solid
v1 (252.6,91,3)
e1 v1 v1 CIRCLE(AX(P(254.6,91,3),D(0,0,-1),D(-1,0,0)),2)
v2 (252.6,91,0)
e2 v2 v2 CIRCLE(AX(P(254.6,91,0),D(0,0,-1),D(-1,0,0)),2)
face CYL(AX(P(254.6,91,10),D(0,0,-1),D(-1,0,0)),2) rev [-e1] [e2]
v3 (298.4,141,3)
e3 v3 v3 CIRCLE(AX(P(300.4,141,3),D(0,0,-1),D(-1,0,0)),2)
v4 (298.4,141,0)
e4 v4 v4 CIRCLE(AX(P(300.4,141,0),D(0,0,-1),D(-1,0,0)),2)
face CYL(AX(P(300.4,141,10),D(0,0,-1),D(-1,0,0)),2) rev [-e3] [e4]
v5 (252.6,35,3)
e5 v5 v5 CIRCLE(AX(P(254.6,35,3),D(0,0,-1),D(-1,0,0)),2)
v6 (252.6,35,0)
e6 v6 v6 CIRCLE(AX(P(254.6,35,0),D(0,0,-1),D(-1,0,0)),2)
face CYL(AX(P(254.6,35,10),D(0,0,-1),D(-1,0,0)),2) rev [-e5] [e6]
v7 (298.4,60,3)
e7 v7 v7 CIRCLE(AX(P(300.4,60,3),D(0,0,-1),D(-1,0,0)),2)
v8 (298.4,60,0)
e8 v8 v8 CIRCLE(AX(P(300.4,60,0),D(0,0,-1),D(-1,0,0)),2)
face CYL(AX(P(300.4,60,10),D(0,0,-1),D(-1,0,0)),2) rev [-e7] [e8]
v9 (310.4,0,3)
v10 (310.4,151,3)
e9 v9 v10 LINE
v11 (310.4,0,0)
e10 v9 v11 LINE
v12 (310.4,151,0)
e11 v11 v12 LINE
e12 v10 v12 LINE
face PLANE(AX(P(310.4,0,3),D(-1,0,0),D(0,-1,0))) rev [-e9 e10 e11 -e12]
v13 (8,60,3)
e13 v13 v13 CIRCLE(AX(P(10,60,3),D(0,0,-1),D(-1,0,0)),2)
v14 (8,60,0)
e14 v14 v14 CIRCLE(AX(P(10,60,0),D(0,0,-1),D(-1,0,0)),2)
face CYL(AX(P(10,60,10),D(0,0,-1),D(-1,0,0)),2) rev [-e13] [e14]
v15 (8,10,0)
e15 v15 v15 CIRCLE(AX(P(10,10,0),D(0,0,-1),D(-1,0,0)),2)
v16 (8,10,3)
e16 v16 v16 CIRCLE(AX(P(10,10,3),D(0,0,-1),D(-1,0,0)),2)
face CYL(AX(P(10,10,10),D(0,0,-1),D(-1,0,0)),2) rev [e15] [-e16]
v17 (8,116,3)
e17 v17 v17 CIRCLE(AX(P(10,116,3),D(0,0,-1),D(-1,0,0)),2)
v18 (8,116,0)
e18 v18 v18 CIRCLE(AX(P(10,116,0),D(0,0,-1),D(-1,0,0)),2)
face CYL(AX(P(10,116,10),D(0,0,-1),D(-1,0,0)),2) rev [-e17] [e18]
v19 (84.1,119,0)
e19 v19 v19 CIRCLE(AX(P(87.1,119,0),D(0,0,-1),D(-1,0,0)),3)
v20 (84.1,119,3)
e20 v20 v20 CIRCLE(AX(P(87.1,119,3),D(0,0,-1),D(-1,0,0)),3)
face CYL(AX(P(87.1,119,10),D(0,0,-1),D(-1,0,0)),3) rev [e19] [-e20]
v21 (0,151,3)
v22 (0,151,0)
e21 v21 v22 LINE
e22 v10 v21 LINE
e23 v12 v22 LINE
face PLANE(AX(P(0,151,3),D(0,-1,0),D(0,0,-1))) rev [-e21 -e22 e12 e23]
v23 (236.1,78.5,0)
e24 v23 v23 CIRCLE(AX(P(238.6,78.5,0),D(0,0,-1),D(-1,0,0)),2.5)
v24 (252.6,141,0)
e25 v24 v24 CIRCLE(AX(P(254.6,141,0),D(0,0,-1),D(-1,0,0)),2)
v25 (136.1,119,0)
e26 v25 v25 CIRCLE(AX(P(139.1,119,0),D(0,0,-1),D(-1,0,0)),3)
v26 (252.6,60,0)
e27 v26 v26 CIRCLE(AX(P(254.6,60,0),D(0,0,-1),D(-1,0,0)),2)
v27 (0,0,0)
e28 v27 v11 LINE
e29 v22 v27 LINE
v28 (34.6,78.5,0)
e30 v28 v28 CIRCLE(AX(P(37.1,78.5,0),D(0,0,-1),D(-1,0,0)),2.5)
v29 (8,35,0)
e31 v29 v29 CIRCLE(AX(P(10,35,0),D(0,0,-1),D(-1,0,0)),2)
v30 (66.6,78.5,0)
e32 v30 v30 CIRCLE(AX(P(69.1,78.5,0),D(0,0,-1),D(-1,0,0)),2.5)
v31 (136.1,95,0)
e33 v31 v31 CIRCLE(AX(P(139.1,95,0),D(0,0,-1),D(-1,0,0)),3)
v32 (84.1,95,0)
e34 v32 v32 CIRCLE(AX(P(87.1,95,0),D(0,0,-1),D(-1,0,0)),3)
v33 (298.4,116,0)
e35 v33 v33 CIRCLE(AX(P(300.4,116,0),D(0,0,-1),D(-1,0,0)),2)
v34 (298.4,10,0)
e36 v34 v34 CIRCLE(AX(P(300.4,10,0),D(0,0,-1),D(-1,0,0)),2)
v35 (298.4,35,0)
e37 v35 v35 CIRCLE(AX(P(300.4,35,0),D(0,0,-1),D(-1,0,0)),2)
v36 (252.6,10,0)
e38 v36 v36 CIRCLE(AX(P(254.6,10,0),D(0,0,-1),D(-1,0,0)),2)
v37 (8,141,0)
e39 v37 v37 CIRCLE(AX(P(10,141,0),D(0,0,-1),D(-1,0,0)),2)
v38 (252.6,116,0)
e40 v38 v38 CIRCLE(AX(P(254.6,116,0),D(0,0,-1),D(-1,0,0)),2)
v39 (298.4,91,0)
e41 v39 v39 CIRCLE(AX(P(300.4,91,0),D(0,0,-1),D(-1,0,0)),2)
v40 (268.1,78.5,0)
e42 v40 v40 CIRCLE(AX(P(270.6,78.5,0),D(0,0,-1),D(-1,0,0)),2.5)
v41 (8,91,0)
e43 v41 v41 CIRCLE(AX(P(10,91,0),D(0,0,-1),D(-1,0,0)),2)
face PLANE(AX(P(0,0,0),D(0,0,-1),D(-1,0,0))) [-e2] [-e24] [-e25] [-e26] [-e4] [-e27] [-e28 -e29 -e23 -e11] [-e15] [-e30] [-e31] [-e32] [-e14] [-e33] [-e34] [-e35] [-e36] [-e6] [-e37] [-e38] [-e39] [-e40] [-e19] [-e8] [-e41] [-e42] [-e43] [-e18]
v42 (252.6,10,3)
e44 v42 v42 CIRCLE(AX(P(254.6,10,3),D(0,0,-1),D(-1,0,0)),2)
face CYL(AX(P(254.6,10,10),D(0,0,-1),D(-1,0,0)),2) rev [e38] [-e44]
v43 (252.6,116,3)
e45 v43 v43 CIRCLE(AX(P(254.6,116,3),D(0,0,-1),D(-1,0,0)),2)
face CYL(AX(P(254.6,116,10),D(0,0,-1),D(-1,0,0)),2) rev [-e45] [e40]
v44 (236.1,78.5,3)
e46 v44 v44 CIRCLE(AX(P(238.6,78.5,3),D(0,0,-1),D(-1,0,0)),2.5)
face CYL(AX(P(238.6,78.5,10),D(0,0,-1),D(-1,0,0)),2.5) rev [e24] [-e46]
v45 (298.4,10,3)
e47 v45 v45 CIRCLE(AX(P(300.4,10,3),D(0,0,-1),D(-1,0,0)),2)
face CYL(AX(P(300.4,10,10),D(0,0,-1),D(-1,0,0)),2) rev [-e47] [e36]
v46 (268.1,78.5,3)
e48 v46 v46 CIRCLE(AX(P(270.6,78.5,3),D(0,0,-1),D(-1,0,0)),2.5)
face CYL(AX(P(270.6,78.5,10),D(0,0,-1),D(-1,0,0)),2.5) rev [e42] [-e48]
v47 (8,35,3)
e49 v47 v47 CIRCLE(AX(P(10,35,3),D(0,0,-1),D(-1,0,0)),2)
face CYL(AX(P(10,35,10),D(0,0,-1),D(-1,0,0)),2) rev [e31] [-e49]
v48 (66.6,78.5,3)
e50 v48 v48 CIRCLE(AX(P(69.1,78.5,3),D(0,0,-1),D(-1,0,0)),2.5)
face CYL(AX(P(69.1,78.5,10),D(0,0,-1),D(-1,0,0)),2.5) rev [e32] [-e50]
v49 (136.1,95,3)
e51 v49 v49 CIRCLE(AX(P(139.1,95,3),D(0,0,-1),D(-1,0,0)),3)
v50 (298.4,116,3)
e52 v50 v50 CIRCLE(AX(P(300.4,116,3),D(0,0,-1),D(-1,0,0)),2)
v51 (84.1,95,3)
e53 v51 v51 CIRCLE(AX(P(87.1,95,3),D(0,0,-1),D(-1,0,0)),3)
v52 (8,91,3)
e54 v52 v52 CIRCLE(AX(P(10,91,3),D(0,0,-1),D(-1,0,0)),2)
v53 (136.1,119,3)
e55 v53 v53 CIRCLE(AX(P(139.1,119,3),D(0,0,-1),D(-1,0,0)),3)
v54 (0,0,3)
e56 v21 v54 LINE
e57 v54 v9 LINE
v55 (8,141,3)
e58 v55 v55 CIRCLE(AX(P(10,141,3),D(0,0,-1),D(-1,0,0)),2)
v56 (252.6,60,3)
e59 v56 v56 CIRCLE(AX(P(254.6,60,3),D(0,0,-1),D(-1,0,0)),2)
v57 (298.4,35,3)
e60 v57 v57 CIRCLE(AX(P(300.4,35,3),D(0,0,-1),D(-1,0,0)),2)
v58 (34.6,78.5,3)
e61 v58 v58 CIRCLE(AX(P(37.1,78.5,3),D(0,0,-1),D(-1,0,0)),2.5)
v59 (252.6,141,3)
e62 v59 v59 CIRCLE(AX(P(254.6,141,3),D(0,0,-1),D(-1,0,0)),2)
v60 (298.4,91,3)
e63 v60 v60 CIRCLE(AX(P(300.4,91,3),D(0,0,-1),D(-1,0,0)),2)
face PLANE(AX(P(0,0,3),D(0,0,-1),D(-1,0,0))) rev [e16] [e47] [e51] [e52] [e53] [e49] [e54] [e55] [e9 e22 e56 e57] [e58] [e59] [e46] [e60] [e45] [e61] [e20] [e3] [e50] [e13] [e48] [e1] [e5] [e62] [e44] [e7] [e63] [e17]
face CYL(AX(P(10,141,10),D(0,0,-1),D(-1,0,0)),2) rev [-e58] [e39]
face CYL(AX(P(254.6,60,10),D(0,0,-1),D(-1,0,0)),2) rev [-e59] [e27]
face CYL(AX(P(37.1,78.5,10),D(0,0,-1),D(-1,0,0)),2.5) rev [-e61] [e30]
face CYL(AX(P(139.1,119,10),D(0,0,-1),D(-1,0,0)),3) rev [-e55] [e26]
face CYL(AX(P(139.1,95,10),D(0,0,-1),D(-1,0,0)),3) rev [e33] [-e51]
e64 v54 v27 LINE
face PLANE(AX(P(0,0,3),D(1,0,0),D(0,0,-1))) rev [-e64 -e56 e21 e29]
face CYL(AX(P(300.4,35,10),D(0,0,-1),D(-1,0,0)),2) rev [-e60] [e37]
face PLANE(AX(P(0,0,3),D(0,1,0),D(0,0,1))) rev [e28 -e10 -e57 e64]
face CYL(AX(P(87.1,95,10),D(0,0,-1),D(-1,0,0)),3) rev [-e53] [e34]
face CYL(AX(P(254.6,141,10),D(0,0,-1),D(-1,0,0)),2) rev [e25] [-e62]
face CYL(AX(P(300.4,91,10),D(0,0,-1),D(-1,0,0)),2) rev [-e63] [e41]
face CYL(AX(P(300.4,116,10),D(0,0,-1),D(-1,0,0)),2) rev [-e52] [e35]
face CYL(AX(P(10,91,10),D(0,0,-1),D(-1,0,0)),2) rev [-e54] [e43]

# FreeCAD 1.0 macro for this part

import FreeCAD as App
import Part
import Sketcher
from FreeCAD import Vector
Q = App.Units.Quantity

doc = App.newDocument("Part")
body = doc.addObject("PartDesign::Body", "Body")

# Sketch on XY plane
sketch1 = body.newObject("Sketcher::SketchObject", "Sketch")
sketch1.AttachmentSupport = (doc.getObject("XY_Plane"), [""])
sketch1.MapMode = "FlatFace"
sketch1.addGeometry(Part.LineSegment(Vector(0, 151, 0), Vector(0, 0, 0)), False)
sketch1.addGeometry(Part.LineSegment(Vector(0, 0, 0), Vector(310.4, 0, 0)), False)
sketch1.addGeometry(Part.LineSegment(Vector(310.4, 0, 0), Vector(310.4, 151, 0)), False)
sketch1.addGeometry(Part.LineSegment(Vector(310.4, 151, 0), Vector(0, 151, 0)), False)
sketch1.addConstraint(Sketcher.Constraint("Coincident", 0, 2, 1, 1))
sketch1.addConstraint(Sketcher.Constraint("Coincident", 1, 2, 2, 1))
sketch1.addConstraint(Sketcher.Constraint("Coincident", 2, 2, 3, 1))
sketch1.addConstraint(Sketcher.Constraint("Coincident", 3, 2, 0, 1))
sketch1.addConstraint(Sketcher.Constraint("Vertical", 0))
sketch1.addConstraint(Sketcher.Constraint("Horizontal", 1))
sketch1.addConstraint(Sketcher.Constraint("Vertical", 2))
sketch1.addConstraint(Sketcher.Constraint("Horizontal", 3))
sketch1.addConstraint(Sketcher.Constraint("Coincident", 0, 2, -1, 1))
sketch1.addConstraint(Sketcher.Constraint("DistanceY", 0, 2, 0, 1, Q("151 mm")))
sketch1.addConstraint(Sketcher.Constraint("DistanceX", 1, 1, 1, 2, Q("310.4 mm")))
pad1 = body.newObject("PartDesign::Pad", "Pad")
pad1.Profile = sketch1
pad1.Length = 3

# Sketch on XY plane
sketch2 = body.newObject("Sketcher::SketchObject", "Sketch001")
sketch2.AttachmentSupport = (doc.getObject("XY_Plane"), [""])
sketch2.MapMode = "FlatFace"
sketch2.addGeometry(Part.Circle(Vector(300.4, 116, 0), Vector(0, 0, 1), 2), False)
sketch2.addGeometry(Part.Circle(Vector(300.4, 141, 0), Vector(0, 0, 1), 2), False)
sketch2.addGeometry(Part.Circle(Vector(300.4, 60, 0), Vector(0, 0, 1), 2), False)
sketch2.addGeometry(Part.Circle(Vector(300.4, 91, 0), Vector(0, 0, 1), 2), False)
sketch2.addGeometry(Part.Circle(Vector(300.4, 35, 0), Vector(0, 0, 1), 2), False)
sketch2.addGeometry(Part.Circle(Vector(300.4, 10, 0), Vector(0, 0, 1), 2), False)
sketch2.addGeometry(Part.Circle(Vector(10, 141, 0), Vector(0, 0, 1), 2), False)
sketch2.addGeometry(Part.Circle(Vector(10, 116, 0), Vector(0, 0, 1), 2), False)
sketch2.addGeometry(Part.Circle(Vector(10, 91, 0), Vector(0, 0, 1), 2), False)
sketch2.addGeometry(Part.Circle(Vector(10, 60, 0), Vector(0, 0, 1), 2), False)
sketch2.addGeometry(Part.Circle(Vector(10, 35, 0), Vector(0, 0, 1), 2), False)
sketch2.addGeometry(Part.Circle(Vector(10, 10, 0), Vector(0, 0, 1), 2), False)
sketch2.addConstraint(Sketcher.Constraint("Equal", 0, 1))
sketch2.addConstraint(Sketcher.Constraint("Equal", 1, 2))
sketch2.addConstraint(Sketcher.Constraint("Equal", 2, 3))
sketch2.addConstraint(Sketcher.Constraint("Equal", 3, 4))
sketch2.addConstraint(Sketcher.Constraint("Equal", 4, 5))
sketch2.addConstraint(Sketcher.Constraint("Equal", 5, 6))
sketch2.addConstraint(Sketcher.Constraint("Equal", 6, 7))
sketch2.addConstraint(Sketcher.Constraint("Equal", 7, 8))
sketch2.addConstraint(Sketcher.Constraint("Equal", 8, 9))
sketch2.addConstraint(Sketcher.Constraint("Equal", 9, 10))
sketch2.addConstraint(Sketcher.Constraint("Equal", 10, 11))
sketch2.addConstraint(Sketcher.Constraint("Horizontal", 1, 3, 6, 3))
sketch2.addConstraint(Sketcher.Constraint("Horizontal", 0, 3, 7, 3))
sketch2.addConstraint(Sketcher.Constraint("Horizontal", 3, 3, 8, 3))
sketch2.addConstraint(Sketcher.Constraint("Horizontal", 2, 3, 9, 3))
sketch2.addConstraint(Sketcher.Constraint("Horizontal", 4, 3, 10, 3))
sketch2.addConstraint(Sketcher.Constraint("Horizontal", 5, 3, 11, 3))
sketch2.addConstraint(Sketcher.Constraint("Vertical", 0, 3, 1, 3))
sketch2.addConstraint(Sketcher.Constraint("Vertical", 1, 3, 2, 3))
sketch2.addConstraint(Sketcher.Constraint("Vertical", 2, 3, 3, 3))
sketch2.addConstraint(Sketcher.Constraint("Vertical", 3, 3, 4, 3))
sketch2.addConstraint(Sketcher.Constraint("Vertical", 4, 3, 5, 3))
sketch2.addConstraint(Sketcher.Constraint("Vertical", 6, 3, 7, 3))
sketch2.addConstraint(Sketcher.Constraint("Vertical", 7, 3, 8, 3))
sketch2.addConstraint(Sketcher.Constraint("Vertical", 8, 3, 9, 3))
sketch2.addConstraint(Sketcher.Constraint("Vertical", 9, 3, 10, 3))
sketch2.addConstraint(Sketcher.Constraint("Vertical", 10, 3, 11, 3))
sketch2.addConstraint(Sketcher.Constraint("Diameter", 0, Q("4 mm")))
sketch2.addConstraint(Sketcher.Constraint("DistanceY", -1, 1, 0, 3, Q("116 mm")))
sketch2.addConstraint(Sketcher.Constraint("DistanceY", -1, 1, 1, 3, Q("141 mm")))
sketch2.addConstraint(Sketcher.Constraint("DistanceY", -1, 1, 2, 3, Q("60 mm")))
sketch2.addConstraint(Sketcher.Constraint("DistanceY", -1, 1, 3, 3, Q("91 mm")))
sketch2.addConstraint(Sketcher.Constraint("DistanceY", -1, 1, 4, 3, Q("35 mm")))
sketch2.addConstraint(Sketcher.Constraint("DistanceY", -1, 1, 5, 3, Q("10 mm")))
sketch2.addConstraint(Sketcher.Constraint("DistanceX", -1, 1, 6, 3, Q("10 mm")))
sketch2.addConstraint(Sketcher.Constraint("DistanceX", -1, 1, 0, 3, Q("300.4 mm")))
pocket1 = body.newObject("PartDesign::Pocket", "Pocket")
pocket1.Profile = sketch2
pocket1.Length = 10
pocket1.Reversed = True

# Sketch on XY plane
sketch3 = body.newObject("Sketcher::SketchObject", "Sketch002")
sketch3.AttachmentSupport = (doc.getObject("XY_Plane"), [""])
sketch3.MapMode = "FlatFace"
sketch3.addGeometry(Part.Circle(Vector(254.6, 10, 0), Vector(0, 0, 1), 2), False)
sketch3.addGeometry(Part.Circle(Vector(254.6, 35, 0), Vector(0, 0, 1), 2), False)
sketch3.addGeometry(Part.Circle(Vector(254.6, 60, 0), Vector(0, 0, 1), 2), False)
sketch3.addGeometry(Part.Circle(Vector(254.6, 91, 0), Vector(0, 0, 1), 2), False)
sketch3.addGeometry(Part.Circle(Vector(254.6, 116, 0), Vector(0, 0, 1), 2), False)
sketch3.addGeometry(Part.Circle(Vector(254.6, 141, 0), Vector(0, 0, 1), 2), False)
sketch3.addConstraint(Sketcher.Constraint("Equal", 0, 1))
sketch3.addConstraint(Sketcher.Constraint("Equal", 1, 2))
sketch3.addConstraint(Sketcher.Constraint("Equal", 2, 3))
sketch3.addConstraint(Sketcher.Constraint("Equal", 3, 4))
sketch3.addConstraint(Sketcher.Constraint("Equal", 4, 5))
sketch3.addConstraint(Sketcher.Constraint("Vertical", 0, 3, 1, 3))
sketch3.addConstraint(Sketcher.Constraint("Vertical", 1, 3, 2, 3))
sketch3.addConstraint(Sketcher.Constraint("Vertical", 2, 3, 3, 3))
sketch3.addConstraint(Sketcher.Constraint("Vertical", 3, 3, 4, 3))
sketch3.addConstraint(Sketcher.Constraint("Vertical", 4, 3, 5, 3))
sketch3.addConstraint(Sketcher.Constraint("Diameter", 0, Q("4 mm")))
sketch3.addConstraint(Sketcher.Constraint("DistanceY", -1, 1, 0, 3, Q("10 mm")))
sketch3.addConstraint(Sketcher.Constraint("DistanceY", -1, 1, 1, 3, Q("35 mm")))
sketch3.addConstraint(Sketcher.Constraint("DistanceY", -1, 1, 2, 3, Q("60 mm")))
sketch3.addConstraint(Sketcher.Constraint("DistanceY", -1, 1, 3, 3, Q("91 mm")))
sketch3.addConstraint(Sketcher.Constraint("DistanceY", -1, 1, 4, 3, Q("116 mm")))
sketch3.addConstraint(Sketcher.Constraint("DistanceY", -1, 1, 5, 3, Q("141 mm")))
sketch3.addConstraint(Sketcher.Constraint("DistanceX", -1, 1, 0, 3, Q("254.6 mm")))
pocket2 = body.newObject("PartDesign::Pocket", "Pocket001")
pocket2.Profile = sketch3
pocket2.Length = 10
pocket2.Reversed = True

# Sketch on XY plane
sketch4 = body.newObject("Sketcher::SketchObject", "Sketch003")
sketch4.AttachmentSupport = (doc.getObject("XY_Plane"), [""])
sketch4.MapMode = "FlatFace"
sketch4.addGeometry(Part.Circle(Vector(139.1, 119, 0), Vector(0, 0, 1), 3), False)
sketch4.addGeometry(Part.Circle(Vector(87.1, 119, 0), Vector(0, 0, 1), 3), False)
sketch4.addGeometry(Part.Circle(Vector(139.1, 95, 0), Vector(0, 0, 1), 3), False)
sketch4.addGeometry(Part.Circle(Vector(87.1, 95, 0), Vector(0, 0, 1), 3), False)
sketch4.addConstraint(Sketcher.Constraint("Equal", 0, 1))
sketch4.addConstraint(Sketcher.Constraint("Equal", 1, 2))
sketch4.addConstraint(Sketcher.Constraint("Equal", 2, 3))
sketch4.addConstraint(Sketcher.Constraint("Horizontal", 0, 3, 1, 3))
sketch4.addConstraint(Sketcher.Constraint("Horizontal", 2, 3, 3, 3))
sketch4.addConstraint(Sketcher.Constraint("Vertical", 0, 3, 2, 3))
sketch4.addConstraint(Sketcher.Constraint("Vertical", 1, 3, 3, 3))
sketch4.addConstraint(Sketcher.Constraint("Diameter", 0, Q("6 mm")))
sketch4.addConstraint(Sketcher.Constraint("DistanceY", -1, 1, 0, 3, Q("119 mm")))
sketch4.addConstraint(Sketcher.Constraint("DistanceY", -1, 1, 2, 3, Q("95 mm")))
sketch4.addConstraint(Sketcher.Constraint("DistanceX", 1, 3, 0, 3, Q("52 mm")))
sketch4.addConstraint(Sketcher.Constraint("DistanceX", -1, 1, 0, 3, Q("139.1 mm")))
pocket3 = body.newObject("PartDesign::Pocket", "Pocket002")
pocket3.Profile = sketch4
pocket3.Length = 10
pocket3.Reversed = True

# Sketch on XY plane
sketch5 = body.newObject("Sketcher::SketchObject", "Sketch004")
sketch5.AttachmentSupport = (doc.getObject("XY_Plane"), [""])
sketch5.MapMode = "FlatFace"
sketch5.addGeometry(Part.Circle(Vector(270.6, 78.5, 0), Vector(0, 0, 1), 2.5), False)
sketch5.addGeometry(Part.Circle(Vector(238.6, 78.5, 0), Vector(0, 0, 1), 2.5), False)
sketch5.addConstraint(Sketcher.Constraint("Equal", 0, 1))
sketch5.addConstraint(Sketcher.Constraint("Horizontal", 0, 3, 1, 3))
sketch5.addConstraint(Sketcher.Constraint("Diameter", 0, Q("5 mm")))
sketch5.addConstraint(Sketcher.Constraint("DistanceX", 1, 3, 0, 3, Q("32 mm")))
sketch5.addConstraint(Sketcher.Constraint("DistanceX", -1, 1, 0, 3, Q("270.6 mm")))
sketch5.addConstraint(Sketcher.Constraint("DistanceY", -1, 1, 0, 3, Q("78.5 mm")))
pocket4 = body.newObject("PartDesign::Pocket", "Pocket003")
pocket4.Profile = sketch5
pocket4.Length = 10
pocket4.Reversed = True

# Sketch on XY plane
sketch6 = body.newObject("Sketcher::SketchObject", "Sketch005")
sketch6.AttachmentSupport = (doc.getObject("XY_Plane"), [""])
sketch6.MapMode = "FlatFace"
sketch6.addGeometry(Part.Circle(Vector(69.1, 78.5, 0), Vector(0, 0, 1), 2.5), False)
sketch6.addGeometry(Part.Circle(Vector(37.1, 78.5, 0), Vector(0, 0, 1), 2.5), False)
sketch6.addConstraint(Sketcher.Constraint("Equal", 0, 1))
sketch6.addConstraint(Sketcher.Constraint("Horizontal", 0, 3, 1, 3))
sketch6.addConstraint(Sketcher.Constraint("Diameter", 0, Q("5 mm")))
sketch6.addConstraint(Sketcher.Constraint("DistanceX", 1, 3, 0, 3, Q("32 mm")))
sketch6.addConstraint(Sketcher.Constraint("DistanceX", -1, 1, 0, 3, Q("69.1 mm")))
sketch6.addConstraint(Sketcher.Constraint("DistanceY", -1, 1, 0, 3, Q("78.5 mm")))
pocket5 = body.newObject("PartDesign::Pocket", "Pocket004")
pocket5.Profile = sketch6
pocket5.Length = 10
pocket5.Reversed = True

doc.recompute()
